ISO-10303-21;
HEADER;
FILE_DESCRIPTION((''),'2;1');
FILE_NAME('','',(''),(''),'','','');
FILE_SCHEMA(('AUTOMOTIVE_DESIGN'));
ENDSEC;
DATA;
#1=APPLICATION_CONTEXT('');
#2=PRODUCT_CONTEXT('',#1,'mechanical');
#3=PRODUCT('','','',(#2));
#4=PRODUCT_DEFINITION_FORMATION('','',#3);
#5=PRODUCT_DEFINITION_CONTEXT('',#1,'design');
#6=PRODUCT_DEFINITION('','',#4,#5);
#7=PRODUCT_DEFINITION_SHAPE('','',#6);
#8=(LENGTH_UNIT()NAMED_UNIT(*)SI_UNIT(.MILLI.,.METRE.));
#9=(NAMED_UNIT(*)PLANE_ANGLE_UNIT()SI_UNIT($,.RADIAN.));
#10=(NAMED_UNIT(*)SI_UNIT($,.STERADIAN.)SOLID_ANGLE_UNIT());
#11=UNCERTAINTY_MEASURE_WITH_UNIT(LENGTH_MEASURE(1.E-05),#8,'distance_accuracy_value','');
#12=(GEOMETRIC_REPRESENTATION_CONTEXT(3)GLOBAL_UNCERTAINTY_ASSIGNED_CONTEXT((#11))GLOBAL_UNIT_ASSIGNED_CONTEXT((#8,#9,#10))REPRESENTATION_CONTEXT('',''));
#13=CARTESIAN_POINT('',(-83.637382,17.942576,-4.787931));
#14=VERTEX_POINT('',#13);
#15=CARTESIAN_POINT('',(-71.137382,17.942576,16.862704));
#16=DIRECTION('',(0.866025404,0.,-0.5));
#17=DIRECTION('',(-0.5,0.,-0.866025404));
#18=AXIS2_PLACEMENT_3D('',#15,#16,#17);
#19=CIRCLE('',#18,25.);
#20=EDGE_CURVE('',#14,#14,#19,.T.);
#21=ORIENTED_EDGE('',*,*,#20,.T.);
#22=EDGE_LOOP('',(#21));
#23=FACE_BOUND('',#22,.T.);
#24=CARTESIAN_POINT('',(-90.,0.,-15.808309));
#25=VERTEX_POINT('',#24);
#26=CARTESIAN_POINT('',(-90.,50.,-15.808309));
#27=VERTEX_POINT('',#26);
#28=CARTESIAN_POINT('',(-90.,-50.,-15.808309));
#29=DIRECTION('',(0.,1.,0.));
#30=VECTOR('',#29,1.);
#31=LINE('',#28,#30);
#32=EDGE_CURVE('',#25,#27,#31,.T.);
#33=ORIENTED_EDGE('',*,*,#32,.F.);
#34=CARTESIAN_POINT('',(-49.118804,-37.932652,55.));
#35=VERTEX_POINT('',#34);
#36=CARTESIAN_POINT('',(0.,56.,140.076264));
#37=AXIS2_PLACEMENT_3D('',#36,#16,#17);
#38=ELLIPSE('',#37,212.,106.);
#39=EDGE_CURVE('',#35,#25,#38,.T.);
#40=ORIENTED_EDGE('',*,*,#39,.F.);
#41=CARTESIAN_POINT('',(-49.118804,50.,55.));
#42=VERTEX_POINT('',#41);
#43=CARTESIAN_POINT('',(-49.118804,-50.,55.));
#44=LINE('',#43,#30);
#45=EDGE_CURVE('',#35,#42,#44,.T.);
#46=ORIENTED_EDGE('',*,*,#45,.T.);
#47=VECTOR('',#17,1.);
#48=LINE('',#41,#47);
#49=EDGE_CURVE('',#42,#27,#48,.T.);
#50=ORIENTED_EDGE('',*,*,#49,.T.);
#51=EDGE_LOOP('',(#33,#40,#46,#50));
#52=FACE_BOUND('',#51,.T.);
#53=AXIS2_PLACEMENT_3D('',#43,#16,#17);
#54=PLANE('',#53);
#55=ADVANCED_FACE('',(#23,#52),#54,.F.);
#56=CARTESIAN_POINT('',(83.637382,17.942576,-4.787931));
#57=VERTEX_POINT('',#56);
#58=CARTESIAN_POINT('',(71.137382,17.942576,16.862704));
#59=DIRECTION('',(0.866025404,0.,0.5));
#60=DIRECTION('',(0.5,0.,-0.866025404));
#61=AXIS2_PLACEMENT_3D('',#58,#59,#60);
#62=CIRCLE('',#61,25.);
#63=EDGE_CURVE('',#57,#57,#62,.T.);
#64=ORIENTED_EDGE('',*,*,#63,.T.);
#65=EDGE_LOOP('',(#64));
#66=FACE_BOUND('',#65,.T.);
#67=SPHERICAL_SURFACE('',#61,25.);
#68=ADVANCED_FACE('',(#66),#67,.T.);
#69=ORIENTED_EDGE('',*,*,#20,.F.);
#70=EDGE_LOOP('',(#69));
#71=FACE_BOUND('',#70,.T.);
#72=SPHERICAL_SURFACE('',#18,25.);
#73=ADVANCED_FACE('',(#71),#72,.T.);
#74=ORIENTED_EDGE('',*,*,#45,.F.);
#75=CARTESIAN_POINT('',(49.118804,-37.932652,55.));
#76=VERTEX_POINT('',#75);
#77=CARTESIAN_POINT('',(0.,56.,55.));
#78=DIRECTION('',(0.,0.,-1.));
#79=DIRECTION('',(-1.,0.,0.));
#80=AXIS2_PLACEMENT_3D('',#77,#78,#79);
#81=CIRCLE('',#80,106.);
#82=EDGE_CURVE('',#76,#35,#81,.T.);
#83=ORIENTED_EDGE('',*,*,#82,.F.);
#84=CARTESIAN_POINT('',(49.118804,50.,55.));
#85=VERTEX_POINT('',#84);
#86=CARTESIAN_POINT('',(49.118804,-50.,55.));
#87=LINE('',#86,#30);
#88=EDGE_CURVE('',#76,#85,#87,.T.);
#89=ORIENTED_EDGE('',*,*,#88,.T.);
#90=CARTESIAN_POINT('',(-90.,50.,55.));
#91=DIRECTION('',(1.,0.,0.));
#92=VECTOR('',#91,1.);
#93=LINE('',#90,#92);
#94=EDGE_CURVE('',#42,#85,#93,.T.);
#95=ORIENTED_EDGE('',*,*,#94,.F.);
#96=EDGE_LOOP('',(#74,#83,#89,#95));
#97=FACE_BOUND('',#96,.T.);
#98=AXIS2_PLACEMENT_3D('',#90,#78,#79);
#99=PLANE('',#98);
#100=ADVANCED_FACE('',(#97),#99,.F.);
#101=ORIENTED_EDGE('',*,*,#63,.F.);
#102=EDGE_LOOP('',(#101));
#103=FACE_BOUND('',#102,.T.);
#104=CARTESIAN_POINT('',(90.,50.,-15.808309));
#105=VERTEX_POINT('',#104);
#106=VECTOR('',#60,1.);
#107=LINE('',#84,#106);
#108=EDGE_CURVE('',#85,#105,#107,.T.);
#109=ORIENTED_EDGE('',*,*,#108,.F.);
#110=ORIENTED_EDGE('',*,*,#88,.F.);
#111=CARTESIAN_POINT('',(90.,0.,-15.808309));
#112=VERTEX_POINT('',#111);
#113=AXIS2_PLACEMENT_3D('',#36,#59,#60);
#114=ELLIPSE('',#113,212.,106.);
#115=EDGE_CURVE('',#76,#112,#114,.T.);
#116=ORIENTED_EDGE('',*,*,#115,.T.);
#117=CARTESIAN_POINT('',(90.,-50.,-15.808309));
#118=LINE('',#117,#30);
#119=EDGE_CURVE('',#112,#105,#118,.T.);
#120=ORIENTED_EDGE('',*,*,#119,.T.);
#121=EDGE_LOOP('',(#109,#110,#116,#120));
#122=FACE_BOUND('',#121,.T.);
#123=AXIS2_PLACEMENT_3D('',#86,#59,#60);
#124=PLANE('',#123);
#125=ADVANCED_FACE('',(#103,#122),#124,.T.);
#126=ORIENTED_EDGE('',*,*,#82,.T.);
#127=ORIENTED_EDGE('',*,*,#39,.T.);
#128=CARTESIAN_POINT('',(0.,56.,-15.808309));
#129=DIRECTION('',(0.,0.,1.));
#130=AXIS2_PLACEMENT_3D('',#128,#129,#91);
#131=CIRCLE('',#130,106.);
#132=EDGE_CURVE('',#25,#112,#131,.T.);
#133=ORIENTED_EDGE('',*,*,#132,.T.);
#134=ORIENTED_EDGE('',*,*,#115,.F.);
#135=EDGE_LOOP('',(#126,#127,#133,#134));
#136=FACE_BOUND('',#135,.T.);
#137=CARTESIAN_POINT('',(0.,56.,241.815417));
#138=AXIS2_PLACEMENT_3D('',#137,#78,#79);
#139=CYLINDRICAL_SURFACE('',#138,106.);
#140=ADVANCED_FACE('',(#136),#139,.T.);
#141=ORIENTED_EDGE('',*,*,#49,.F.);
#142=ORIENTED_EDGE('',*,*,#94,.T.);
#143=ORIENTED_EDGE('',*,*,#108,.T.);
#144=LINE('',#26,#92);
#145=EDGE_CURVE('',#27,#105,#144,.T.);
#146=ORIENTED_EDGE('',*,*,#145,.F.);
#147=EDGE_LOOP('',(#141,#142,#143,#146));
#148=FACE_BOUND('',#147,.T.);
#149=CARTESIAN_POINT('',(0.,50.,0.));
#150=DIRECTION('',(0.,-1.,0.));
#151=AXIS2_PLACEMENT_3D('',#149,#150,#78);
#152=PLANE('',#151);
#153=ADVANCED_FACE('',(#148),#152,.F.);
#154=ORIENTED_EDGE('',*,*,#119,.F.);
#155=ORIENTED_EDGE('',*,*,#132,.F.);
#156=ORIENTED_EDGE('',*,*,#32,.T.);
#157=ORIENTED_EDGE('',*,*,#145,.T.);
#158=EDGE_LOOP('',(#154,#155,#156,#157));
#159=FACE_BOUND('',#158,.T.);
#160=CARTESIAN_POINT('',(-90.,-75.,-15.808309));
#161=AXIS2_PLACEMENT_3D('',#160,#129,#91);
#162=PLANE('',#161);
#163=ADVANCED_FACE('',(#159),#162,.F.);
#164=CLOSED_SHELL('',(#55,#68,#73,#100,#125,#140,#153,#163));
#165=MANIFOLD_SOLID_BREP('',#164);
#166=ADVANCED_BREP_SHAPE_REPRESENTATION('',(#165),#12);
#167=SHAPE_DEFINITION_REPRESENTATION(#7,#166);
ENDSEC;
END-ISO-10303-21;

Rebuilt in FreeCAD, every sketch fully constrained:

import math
import FreeCAD as App
import Part
import Sketcher

V = App.Vector
Q = App.Units.Quantity

doc = App.newDocument("Part")
params = doc.addObject("Spreadsheet::Sheet", "Params")
for row, (alias, value) in enumerate([
    ("sketch1_width", "180 mm"),
    ("sketch1_height", "110 mm"),
    ("pad1_length", "50 mm"),
    ("sketch2_radius", "106 mm"),
    ("sketch2_width", "180 mm"),
    ("pad2_length", "110 mm"),
    ("sketch4_diameter", "10 mm"),
    ("pad3_length", "10 mm"),
    ("pad3_length2", "10 mm"),
    ("sketch5_radius", "25 mm"),
    ("revolution_angle", "360 deg"),
    ("pocket2_length", "125 mm"),
], start=1):
    params.set(f"A{row}", alias)
    params.set(f"B{row}", "=" + value)
    params.setAlias(f"B{row}", alias)

body = doc.addObject("PartDesign::Body", "Body")

sketch1 = doc.addObject("Sketcher::SketchObject", "Sketch")
body.addObject(sketch1)
sketch1.AttachmentSupport = (doc.XZ_Plane, [""])
sketch1.MapMode = "FlatFace"
sketch1.addGeometry([
    Part.LineSegment(V(-90, -55, 0), V(-90, 55, 0)),
    Part.LineSegment(V(-90, 55, 0), V(90, 55, 0)),
    Part.LineSegment(V(90, 55, 0), V(90, -55, 0)),
    Part.LineSegment(V(90, -55, 0), V(-90, -55, 0)),
], False)
sketch1.addConstraint([
    Sketcher.Constraint("Coincident", 0, 2, 1, 1),
    Sketcher.Constraint("Coincident", 1, 2, 2, 1),
    Sketcher.Constraint("Coincident", 2, 2, 3, 1),
    Sketcher.Constraint("Coincident", 3, 2, 0, 1),
    Sketcher.Constraint("Vertical", 0),
    Sketcher.Constraint("Horizontal", 1),
    Sketcher.Constraint("Vertical", 2),
    Sketcher.Constraint("Horizontal", 3),
    Sketcher.Constraint("Symmetric", 0, 2, 2, 2, -1, 1),
    Sketcher.Constraint("DistanceX", 1, 1, 1, 2, Q("180 mm")),
    Sketcher.Constraint("DistanceY", 0, 1, 0, 2, Q("110 mm")),
])
sketch1.setExpression("Constraints[9]", "Params.sketch1_width")
sketch1.setExpression("Constraints[10]", "Params.sketch1_height")
pad1 = doc.addObject("PartDesign::Pad", "Pad")
body.addObject(pad1)
pad1.Profile = sketch1
pad1.setExpression("Length", "Params.pad1_length")
pad1.Reversed = True

sketch2 = doc.addObject("Sketcher::SketchObject", "Sketch001")
body.addObject(sketch2)
sketch2.AttachmentSupport = (doc.XY_Plane, [""])
sketch2.MapMode = "FlatFace"
sketch2.AttachmentOffset = App.Placement(V(0, 0, -55), App.Rotation())
sketch2.addGeometry([
    Part.LineSegment(V(90, 0, 0), V(-90, 0, 0)),
    Part.ArcOfCircle(Part.Circle(V(0, 56, 0), V(0, 0, 1), 106), math.radians(-148), math.radians(-32)),
], False)
sketch2.addConstraint([
    Sketcher.Constraint("Coincident", 0, 1, 1, 2),
    Sketcher.Constraint("Coincident", 1, 1, 0, 2),
    Sketcher.Constraint("Horizontal", 0),
    Sketcher.Constraint("Symmetric", 0, 1, 1, 1, -1, 1),
    Sketcher.Constraint("Radius", 1, Q("106 mm")),
    Sketcher.Constraint("DistanceX", 0, 2, 0, 1, Q("180 mm")),
])
sketch2.setExpression("Constraints[4]", "Params.sketch2_radius")
sketch2.setExpression("Constraints[5]", "Params.sketch2_width")
pad2 = doc.addObject("PartDesign::Pad", "Pad001")
body.addObject(pad2)
pad2.Profile = sketch2
pad2.setExpression("Length", "Params.pad2_length")

sketch3 = doc.addObject("Sketcher::SketchObject", "Sketch002")
body.addObject(sketch3)
sketch3.AttachmentSupport = (doc.XZ_Plane, [""])
sketch3.MapMode = "FlatFace"
sketch3.AttachmentOffset = App.Placement(V(0, 0, -50), App.Rotation())
sketch3.addGeometry([
    Part.LineSegment(V(-49, 55, 0), V(-90, -16, 0)),
    Part.LineSegment(V(-90, -16, 0), V(-90, 55, 0)),
    Part.LineSegment(V(-90, 55, 0), V(-49, 55, 0)),
], False)
sketch3.addConstraint([
    Sketcher.Constraint("Coincident", 0, 2, 1, 1),
    Sketcher.Constraint("Coincident", 1, 2, 2, 1),
    Sketcher.Constraint("Coincident", 2, 2, 0, 1),
    Sketcher.Constraint("Vertical", 1),
    Sketcher.Constraint("Horizontal", 2),
    Sketcher.Constraint("Angle", 0, Q("-120 deg")),
    Sketcher.Constraint("DistanceX", 0, 2, -1, 1, Q("90 mm")),
    Sketcher.Constraint("DistanceY", -1, 1, 1, 2, Q("55 mm")),
    Sketcher.Constraint("DistanceY", 1, 1, 1, 2, Q("70.808309 mm")),
])
pocket1 = doc.addObject("PartDesign::Pocket", "Pocket")
body.addObject(pocket1)
pocket1.Profile = sketch3
pocket1.Type = "ThroughAll"
pocket1.Reversed = True
doc.recompute()

mirrored = doc.addObject("PartDesign::Mirrored", "Mirrored")
body.addObject(mirrored)
mirrored.Originals = [pocket1]
mirrored.MirrorPlane = (doc.YZ_Plane, [""])
body.Tip = mirrored

sketch4 = doc.addObject("Sketcher::SketchObject", "Sketch003")
body.addObject(sketch4)
sketch4.AttachmentSupport = (doc.XY_Plane, [""])
sketch4.MapMode = "FlatFace"
sketch4.AttachmentOffset = App.Placement(V(0, 0, -55), App.Rotation())
sketch4.addGeometry(Part.Circle(V(0, 0, 0), V(0, 0, 1), 5), False)
sketch4.addConstraint([
    Sketcher.Constraint("Coincident", 0, 3, -1, 1),
    Sketcher.Constraint("Diameter", 0, Q("10 mm")),
])
sketch4.setExpression("Constraints[1]", "Params.sketch4_diameter")
pad3 = doc.addObject("PartDesign::Pad", "Pad002")
body.addObject(pad3)
pad3.Profile = sketch4
pad3.Type = "TwoLengths"
pad3.setExpression("Length", "Params.pad3_length")
pad3.setExpression("Length2", "Params.pad3_length2")
pad3.Reversed = True

sketch5 = doc.addObject("Sketcher::SketchObject", "Sketch004")
body.addObject(sketch5)
sketch5.Placement = App.Placement(V(-60.654801, 0, 35.019066), App.Rotation(V(0.5, 0, 0.866025404), V(0, 1, 0), V(-0.866025404, 0, 0.5), "ZXY"))
sketch5.addGeometry([
    Part.ArcOfCircle(Part.Circle(V(-21, 18, 0), V(0, 0, 1), 25), math.radians(-90), math.radians(90)),
    Part.LineSegment(V(-21, 43, 0), V(-21, -7, 0)),
], False)
sketch5.addGeometry(Part.LineSegment(V(-21, 43, 0), V(-21, -7, 0)), True)
sketch5.addConstraint([
    Sketcher.Constraint("Coincident", 0, 1, 1, 2),
    Sketcher.Constraint("Coincident", 1, 1, 0, 2),
    Sketcher.Constraint("Vertical", 1),
    Sketcher.Constraint("Vertical", 2),
    Sketcher.Constraint("Coincident", 2, 1, 1, 1),
    Sketcher.Constraint("Equal", 1, 2),
    Sketcher.Constraint("Radius", 0, Q("25 mm")),
    Sketcher.Constraint("DistanceX", 0, 3, -1, 1, Q("20.965161 mm")),
    Sketcher.Constraint("DistanceX", 0, 1, -1, 1, Q("20.965161 mm")),
    Sketcher.Constraint("DistanceY", -1, 1, 0, 3, Q("17.942577 mm")),
])
sketch5.setExpression("Constraints[6]", "Params.sketch5_radius")
revolution = doc.addObject("PartDesign::Revolution", "Revolution")
body.addObject(revolution)
revolution.Profile = sketch5
revolution.ReferenceAxis = (sketch5, ["Axis0"])
revolution.setExpression("Angle", "Params.revolution_angle")
doc.recompute()

mirrored2 = doc.addObject("PartDesign::Mirrored", "Mirrored001")
body.addObject(mirrored2)
mirrored2.Originals = [revolution]
mirrored2.MirrorPlane = (doc.YZ_Plane, [""])
body.Tip = mirrored2

sketch6 = doc.addObject("Sketcher::SketchObject", "Sketch005")
body.addObject(sketch6)
sketch6.AttachmentSupport = (doc.XZ_Plane, [""])
sketch6.MapMode = "FlatFace"
sketch6.AttachmentOffset = App.Placement(V(0, 0, -50), App.Rotation())
sketch6.addGeometry([
    Part.LineSegment(V(-90, -72, 0), V(-90, -16, 0)),
    Part.LineSegment(V(-90, -16, 0), V(90, -16, 0)),
    Part.LineSegment(V(90, -16, 0), V(90, -72, 0)),
    Part.LineSegment(V(90, -72, 0), V(-90, -72, 0)),
], False)
sketch6.addConstraint([
    Sketcher.Constraint("Coincident", 0, 2, 1, 1),
    Sketcher.Constraint("Coincident", 1, 2, 2, 1),
    Sketcher.Constraint("Coincident", 2, 2, 3, 1),
    Sketcher.Constraint("Coincident", 3, 2, 0, 1),
    Sketcher.Constraint("Vertical", 0),
    Sketcher.Constraint("Horizontal", 1),
    Sketcher.Constraint("Vertical", 2),
    Sketcher.Constraint("Horizontal", 3),
    Sketcher.Constraint("DistanceX", 0, 2, -1, 1, Q("90 mm")),
    Sketcher.Constraint("DistanceX", 1, 1, 1, 2, Q("180.238397 mm")),
    Sketcher.Constraint("DistanceY", 0, 1, 0, 2, Q("55.735834 mm")),
    Sketcher.Constraint("DistanceY", 0, 2, -1, 1, Q("15.808309 mm")),
])
pocket2 = doc.addObject("PartDesign::Pocket", "Pocket001")
body.addObject(pocket2)
pocket2.Profile = sketch6
pocket2.setExpression("Length", "Params.pocket2_length")
pocket2.Reversed = True

doc.recompute()
